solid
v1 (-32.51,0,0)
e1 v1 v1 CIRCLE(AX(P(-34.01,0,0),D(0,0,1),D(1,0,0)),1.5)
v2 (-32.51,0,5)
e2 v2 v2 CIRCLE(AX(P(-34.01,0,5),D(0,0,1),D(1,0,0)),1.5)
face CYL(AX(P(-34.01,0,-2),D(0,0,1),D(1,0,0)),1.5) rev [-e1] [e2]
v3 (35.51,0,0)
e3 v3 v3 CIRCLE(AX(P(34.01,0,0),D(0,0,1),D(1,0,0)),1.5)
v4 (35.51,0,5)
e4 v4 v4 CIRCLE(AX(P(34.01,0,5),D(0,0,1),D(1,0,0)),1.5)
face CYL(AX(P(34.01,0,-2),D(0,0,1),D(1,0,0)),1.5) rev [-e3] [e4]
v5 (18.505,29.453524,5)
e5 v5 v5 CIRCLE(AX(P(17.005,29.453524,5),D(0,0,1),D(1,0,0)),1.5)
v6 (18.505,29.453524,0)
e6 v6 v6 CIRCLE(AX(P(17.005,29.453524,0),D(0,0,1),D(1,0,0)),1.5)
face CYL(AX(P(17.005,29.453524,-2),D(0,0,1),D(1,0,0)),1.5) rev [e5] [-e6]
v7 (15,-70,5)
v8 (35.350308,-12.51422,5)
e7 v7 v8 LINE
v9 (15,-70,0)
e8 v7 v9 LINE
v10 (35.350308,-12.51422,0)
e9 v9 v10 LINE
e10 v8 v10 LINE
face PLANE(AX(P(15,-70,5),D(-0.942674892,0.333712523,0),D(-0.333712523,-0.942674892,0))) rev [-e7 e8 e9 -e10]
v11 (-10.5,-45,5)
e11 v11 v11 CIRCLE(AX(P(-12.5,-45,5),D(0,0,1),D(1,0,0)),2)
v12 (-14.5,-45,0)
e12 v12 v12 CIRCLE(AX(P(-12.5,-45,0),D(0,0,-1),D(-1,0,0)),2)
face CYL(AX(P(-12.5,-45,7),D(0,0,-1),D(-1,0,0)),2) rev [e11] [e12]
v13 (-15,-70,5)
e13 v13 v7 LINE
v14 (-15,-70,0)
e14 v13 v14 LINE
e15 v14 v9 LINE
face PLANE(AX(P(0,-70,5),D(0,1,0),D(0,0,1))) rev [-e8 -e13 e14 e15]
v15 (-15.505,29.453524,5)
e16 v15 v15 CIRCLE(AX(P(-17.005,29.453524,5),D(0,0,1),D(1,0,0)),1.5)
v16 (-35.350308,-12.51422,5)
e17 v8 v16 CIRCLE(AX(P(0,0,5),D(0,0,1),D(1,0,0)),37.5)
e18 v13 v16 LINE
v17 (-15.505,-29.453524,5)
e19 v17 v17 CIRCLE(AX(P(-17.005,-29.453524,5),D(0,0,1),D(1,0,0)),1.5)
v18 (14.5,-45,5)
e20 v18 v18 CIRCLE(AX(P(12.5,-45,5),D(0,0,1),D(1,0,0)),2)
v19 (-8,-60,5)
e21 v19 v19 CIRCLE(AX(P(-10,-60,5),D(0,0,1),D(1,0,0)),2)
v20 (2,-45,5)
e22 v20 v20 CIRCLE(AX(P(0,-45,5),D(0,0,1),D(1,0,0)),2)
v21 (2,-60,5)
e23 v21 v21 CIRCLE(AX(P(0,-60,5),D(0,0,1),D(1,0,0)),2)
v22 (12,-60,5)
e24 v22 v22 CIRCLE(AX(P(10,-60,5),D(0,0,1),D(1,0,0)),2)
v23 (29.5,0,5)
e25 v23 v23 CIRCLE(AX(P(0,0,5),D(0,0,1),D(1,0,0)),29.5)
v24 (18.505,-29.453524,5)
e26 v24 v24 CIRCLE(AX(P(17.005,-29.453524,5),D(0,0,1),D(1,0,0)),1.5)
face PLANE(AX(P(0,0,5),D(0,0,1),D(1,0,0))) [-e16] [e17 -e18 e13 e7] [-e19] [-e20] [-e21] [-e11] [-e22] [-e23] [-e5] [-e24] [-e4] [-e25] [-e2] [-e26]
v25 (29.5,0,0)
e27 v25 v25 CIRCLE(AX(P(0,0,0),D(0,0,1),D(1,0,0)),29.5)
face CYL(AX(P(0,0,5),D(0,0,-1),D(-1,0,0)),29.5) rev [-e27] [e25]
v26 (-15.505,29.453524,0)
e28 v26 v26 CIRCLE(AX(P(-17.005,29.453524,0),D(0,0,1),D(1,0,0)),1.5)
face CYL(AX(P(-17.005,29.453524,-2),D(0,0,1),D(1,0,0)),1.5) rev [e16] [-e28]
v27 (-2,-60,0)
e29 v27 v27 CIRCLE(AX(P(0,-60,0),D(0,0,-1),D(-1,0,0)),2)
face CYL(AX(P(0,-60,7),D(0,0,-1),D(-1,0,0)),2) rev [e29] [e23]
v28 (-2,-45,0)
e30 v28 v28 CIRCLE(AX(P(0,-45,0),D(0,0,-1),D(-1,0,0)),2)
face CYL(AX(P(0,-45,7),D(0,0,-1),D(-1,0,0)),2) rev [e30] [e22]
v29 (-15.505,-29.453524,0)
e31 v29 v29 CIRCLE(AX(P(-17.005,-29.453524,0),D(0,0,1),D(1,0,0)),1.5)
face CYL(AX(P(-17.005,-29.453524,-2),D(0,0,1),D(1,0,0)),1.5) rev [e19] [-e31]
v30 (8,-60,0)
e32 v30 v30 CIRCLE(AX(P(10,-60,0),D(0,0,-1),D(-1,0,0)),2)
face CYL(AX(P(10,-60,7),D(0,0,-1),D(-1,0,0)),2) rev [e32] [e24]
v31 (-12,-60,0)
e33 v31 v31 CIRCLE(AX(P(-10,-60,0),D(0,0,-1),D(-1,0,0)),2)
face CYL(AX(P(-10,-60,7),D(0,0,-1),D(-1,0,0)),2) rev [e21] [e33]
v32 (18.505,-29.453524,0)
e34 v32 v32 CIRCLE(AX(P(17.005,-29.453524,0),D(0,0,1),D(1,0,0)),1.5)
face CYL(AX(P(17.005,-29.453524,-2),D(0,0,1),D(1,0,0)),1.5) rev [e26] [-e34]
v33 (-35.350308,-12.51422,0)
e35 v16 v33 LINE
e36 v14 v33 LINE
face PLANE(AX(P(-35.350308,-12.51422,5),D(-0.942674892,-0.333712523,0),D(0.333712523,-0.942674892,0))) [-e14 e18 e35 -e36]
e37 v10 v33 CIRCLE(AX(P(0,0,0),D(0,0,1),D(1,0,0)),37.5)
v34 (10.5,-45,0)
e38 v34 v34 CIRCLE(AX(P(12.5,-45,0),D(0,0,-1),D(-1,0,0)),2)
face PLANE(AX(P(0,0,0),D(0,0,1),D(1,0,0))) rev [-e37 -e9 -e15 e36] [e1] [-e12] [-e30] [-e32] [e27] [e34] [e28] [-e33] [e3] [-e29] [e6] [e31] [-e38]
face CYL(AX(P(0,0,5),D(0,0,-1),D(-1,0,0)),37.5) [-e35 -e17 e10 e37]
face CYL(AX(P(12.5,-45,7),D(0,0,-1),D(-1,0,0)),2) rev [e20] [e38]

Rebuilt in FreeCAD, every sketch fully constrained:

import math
import FreeCAD as App
import Part
import Sketcher

V = App.Vector
Q = App.Units.Quantity

doc = App.newDocument("Part")
params = doc.addObject("Spreadsheet::Sheet", "Params")
for row, (alias, value) in enumerate([
    ("sketch1_diameter", "59 mm"),
    ("sketch1_radius", "37.5 mm"),
    ("sketch1_width", "30 mm"),
    ("pad1_length", "5 mm"),
    ("sketch2_diameter", "4 mm"),
    ("pocket1_length", "7 mm"),
    ("sketch3_diameter", "3 mm"),
    ("pocket2_length", "7 mm"),
], start=1):
    params.set(f"A{row}", alias)
    params.set(f"B{row}", "=" + value)
    params.setAlias(f"B{row}", alias)

body = doc.addObject("PartDesign::Body", "Body")

# Sketch on XY plane
sketch1 = body.newObject("Sketcher::SketchObject", "Sketch")
sketch1.AttachmentSupport = (doc.getObject("XY_Plane"), [""])
sketch1.MapMode = "FlatFace"
sketch1.addGeometry([
    Part.LineSegment(V(-35, -13, 0), V(-15, -70, 0)),  # 0
    Part.LineSegment(V(-15, -70, 0), V(15, -70, 0)),  # 1
    Part.LineSegment(V(15, -70, 0), V(35, -13, 0)),  # 2
    Part.ArcOfCircle(Part.Circle(V(0, 0, 0), V(0, 0, 1), 38), math.radians(-19), math.radians(199)),  # 3
    Part.Circle(V(0, 0, 0), V(0, 0, 1), 30),  # 4
], False)
sketch1.addConstraint([
    Sketcher.Constraint("Coincident", 0, 2, 1, 1),
    Sketcher.Constraint("Coincident", 1, 2, 2, 1),
    Sketcher.Constraint("Tangent", 2, 2, 3, 1),
    Sketcher.Constraint("Tangent", 3, 2, 0, 1),
    Sketcher.Constraint("Horizontal", 1),
    Sketcher.Constraint("Coincident", 3, 3, -1, 1),
    Sketcher.Constraint("Coincident", 4, 3, -1, 1),
    Sketcher.Constraint("Horizontal", 2, 2, 3, 2),
    Sketcher.Constraint("Diameter", 4, Q("59 mm")),
    Sketcher.Constraint("Radius", 3, Q("37.5 mm")),
    Sketcher.Constraint("DistanceX", 1, 1, 1, 2, Q("30 mm")),
    Sketcher.Constraint("DistanceY", 0, 2, -1, 1, Q("70 mm")),
])
sketch1.setExpression("Constraints[8]", "Params.sketch1_diameter")
sketch1.setExpression("Constraints[9]", "Params.sketch1_radius")
sketch1.setExpression("Constraints[10]", "Params.sketch1_width")
pad1 = body.newObject("PartDesign::Pad", "Pad")
pad1.Profile = sketch1
pad1.setExpression("Length", "Params.pad1_length")

# Sketch on XY plane
sketch2 = body.newObject("Sketcher::SketchObject", "Sketch001")
sketch2.AttachmentSupport = (doc.getObject("XY_Plane"), [""])
sketch2.MapMode = "FlatFace"
sketch2.addGeometry([
    Part.Circle(V(12.5, -45, 0), V(0, 0, 1), 2),  # 0
    Part.Circle(V(-12.5, -45, 0), V(0, 0, 1), 2),  # 1
    Part.Circle(V(10, -60, 0), V(0, 0, 1), 2),  # 2
    Part.Circle(V(-10, -60, 0), V(0, 0, 1), 2),  # 3
    Part.Circle(V(0, -45, 0), V(0, 0, 1), 2),  # 4
    Part.Circle(V(0, -60, 0), V(0, 0, 1), 2),  # 5
], False)
sketch2.addConstraint([
    Sketcher.Constraint("Equal", 0, 1),
    Sketcher.Constraint("Equal", 1, 2),
    Sketcher.Constraint("Equal", 2, 3),
    Sketcher.Constraint("Equal", 3, 4),
    Sketcher.Constraint("Equal", 4, 5),
    Sketcher.Constraint("Symmetric", 0, 3, 1, 3, -2),
    Sketcher.Constraint("Symmetric", 2, 3, 3, 3, -2),
    Sketcher.Constraint("PointOnObject", 4, 3, -2),
    Sketcher.Constraint("PointOnObject", 5, 3, -2),
    Sketcher.Constraint("Horizontal", 1, 3, 4, 3),
    Sketcher.Constraint("Horizontal", 3, 3, 5, 3),
    Sketcher.Constraint("Diameter", 0, Q("4 mm")),
    Sketcher.Constraint("DistanceY", 0, 3, -1, 1, Q("45 mm")),
    Sketcher.Constraint("DistanceX", -1, 1, 2, 3, Q("10 mm")),
    Sketcher.Constraint("DistanceY", 2, 3, -1, 1, Q("60 mm")),
    Sketcher.Constraint("DistanceX", 1, 3, 0, 3, Q("25 mm")),
])
sketch2.setExpression("Constraints[11]", "Params.sketch2_diameter")
pocket1 = body.newObject("PartDesign::Pocket", "Pocket")
pocket1.Profile = sketch2
pocket1.setExpression("Length", "Params.pocket1_length")
pocket1.Reversed = True

# Sketch on XY plane
sketch3 = body.newObject("Sketcher::SketchObject", "Sketch002")
sketch3.AttachmentSupport = (doc.getObject("XY_Plane"), [""])
sketch3.MapMode = "FlatFace"
sketch3.AttachmentOffset = App.Placement(V(0, 0, 5), App.Rotation())
sketch3.addGeometry([
    Part.Circle(V(17, 29.5, 0), V(0, 0, 1), 1.5),  # 0
    Part.Circle(V(34, 0, 0), V(0, 0, 1), 1.5),  # 1
    Part.Circle(V(17, -29.5, 0), V(0, 0, 1), 1.5),  # 2
    Part.Circle(V(-17, -29.5, 0), V(0, 0, 1), 1.5),  # 3
    Part.Circle(V(-34, 0, 0), V(0, 0, 1), 1.5),  # 4
    Part.Circle(V(-17, 29.5, 0), V(0, 0, 1), 1.5),  # 5
], False)
sketch3.addConstraint([
    Sketcher.Constraint("Equal", 0, 1),
    Sketcher.Constraint("Equal", 1, 2),
    Sketcher.Constraint("Equal", 2, 3),
    Sketcher.Constraint("Equal", 3, 4),
    Sketcher.Constraint("Equal", 4, 5),
    Sketcher.Constraint("Symmetric", 0, 3, 3, 3, -1, 1),
    Sketcher.Constraint("Symmetric", 1, 3, 4, 3, -1, 1),
    Sketcher.Constraint("Symmetric", 2, 3, 5, 3, -1, 1),
    Sketcher.Constraint("Symmetric", 2, 3, 3, 3, -2),
    Sketcher.Constraint("PointOnObject", 1, 3, -1),
    Sketcher.Constraint("Diameter", 0, Q("3 mm")),
    Sketcher.Constraint("DistanceX", -1, 1, 1, 3, Q("34.01 mm")),
    Sketcher.Constraint("DistanceX", 3, 3, 2, 3, Q("34.01 mm")),
    Sketcher.Constraint("DistanceY", -1, 1, 0, 3, Q("29.453524 mm")),
])
sketch3.setExpression("Constraints[10]", "Params.sketch3_diameter")
pocket2 = body.newObject("PartDesign::Pocket", "Pocket001")
pocket2.Profile = sketch3
pocket2.setExpression("Length", "Params.pocket2_length")

doc.recompute()
